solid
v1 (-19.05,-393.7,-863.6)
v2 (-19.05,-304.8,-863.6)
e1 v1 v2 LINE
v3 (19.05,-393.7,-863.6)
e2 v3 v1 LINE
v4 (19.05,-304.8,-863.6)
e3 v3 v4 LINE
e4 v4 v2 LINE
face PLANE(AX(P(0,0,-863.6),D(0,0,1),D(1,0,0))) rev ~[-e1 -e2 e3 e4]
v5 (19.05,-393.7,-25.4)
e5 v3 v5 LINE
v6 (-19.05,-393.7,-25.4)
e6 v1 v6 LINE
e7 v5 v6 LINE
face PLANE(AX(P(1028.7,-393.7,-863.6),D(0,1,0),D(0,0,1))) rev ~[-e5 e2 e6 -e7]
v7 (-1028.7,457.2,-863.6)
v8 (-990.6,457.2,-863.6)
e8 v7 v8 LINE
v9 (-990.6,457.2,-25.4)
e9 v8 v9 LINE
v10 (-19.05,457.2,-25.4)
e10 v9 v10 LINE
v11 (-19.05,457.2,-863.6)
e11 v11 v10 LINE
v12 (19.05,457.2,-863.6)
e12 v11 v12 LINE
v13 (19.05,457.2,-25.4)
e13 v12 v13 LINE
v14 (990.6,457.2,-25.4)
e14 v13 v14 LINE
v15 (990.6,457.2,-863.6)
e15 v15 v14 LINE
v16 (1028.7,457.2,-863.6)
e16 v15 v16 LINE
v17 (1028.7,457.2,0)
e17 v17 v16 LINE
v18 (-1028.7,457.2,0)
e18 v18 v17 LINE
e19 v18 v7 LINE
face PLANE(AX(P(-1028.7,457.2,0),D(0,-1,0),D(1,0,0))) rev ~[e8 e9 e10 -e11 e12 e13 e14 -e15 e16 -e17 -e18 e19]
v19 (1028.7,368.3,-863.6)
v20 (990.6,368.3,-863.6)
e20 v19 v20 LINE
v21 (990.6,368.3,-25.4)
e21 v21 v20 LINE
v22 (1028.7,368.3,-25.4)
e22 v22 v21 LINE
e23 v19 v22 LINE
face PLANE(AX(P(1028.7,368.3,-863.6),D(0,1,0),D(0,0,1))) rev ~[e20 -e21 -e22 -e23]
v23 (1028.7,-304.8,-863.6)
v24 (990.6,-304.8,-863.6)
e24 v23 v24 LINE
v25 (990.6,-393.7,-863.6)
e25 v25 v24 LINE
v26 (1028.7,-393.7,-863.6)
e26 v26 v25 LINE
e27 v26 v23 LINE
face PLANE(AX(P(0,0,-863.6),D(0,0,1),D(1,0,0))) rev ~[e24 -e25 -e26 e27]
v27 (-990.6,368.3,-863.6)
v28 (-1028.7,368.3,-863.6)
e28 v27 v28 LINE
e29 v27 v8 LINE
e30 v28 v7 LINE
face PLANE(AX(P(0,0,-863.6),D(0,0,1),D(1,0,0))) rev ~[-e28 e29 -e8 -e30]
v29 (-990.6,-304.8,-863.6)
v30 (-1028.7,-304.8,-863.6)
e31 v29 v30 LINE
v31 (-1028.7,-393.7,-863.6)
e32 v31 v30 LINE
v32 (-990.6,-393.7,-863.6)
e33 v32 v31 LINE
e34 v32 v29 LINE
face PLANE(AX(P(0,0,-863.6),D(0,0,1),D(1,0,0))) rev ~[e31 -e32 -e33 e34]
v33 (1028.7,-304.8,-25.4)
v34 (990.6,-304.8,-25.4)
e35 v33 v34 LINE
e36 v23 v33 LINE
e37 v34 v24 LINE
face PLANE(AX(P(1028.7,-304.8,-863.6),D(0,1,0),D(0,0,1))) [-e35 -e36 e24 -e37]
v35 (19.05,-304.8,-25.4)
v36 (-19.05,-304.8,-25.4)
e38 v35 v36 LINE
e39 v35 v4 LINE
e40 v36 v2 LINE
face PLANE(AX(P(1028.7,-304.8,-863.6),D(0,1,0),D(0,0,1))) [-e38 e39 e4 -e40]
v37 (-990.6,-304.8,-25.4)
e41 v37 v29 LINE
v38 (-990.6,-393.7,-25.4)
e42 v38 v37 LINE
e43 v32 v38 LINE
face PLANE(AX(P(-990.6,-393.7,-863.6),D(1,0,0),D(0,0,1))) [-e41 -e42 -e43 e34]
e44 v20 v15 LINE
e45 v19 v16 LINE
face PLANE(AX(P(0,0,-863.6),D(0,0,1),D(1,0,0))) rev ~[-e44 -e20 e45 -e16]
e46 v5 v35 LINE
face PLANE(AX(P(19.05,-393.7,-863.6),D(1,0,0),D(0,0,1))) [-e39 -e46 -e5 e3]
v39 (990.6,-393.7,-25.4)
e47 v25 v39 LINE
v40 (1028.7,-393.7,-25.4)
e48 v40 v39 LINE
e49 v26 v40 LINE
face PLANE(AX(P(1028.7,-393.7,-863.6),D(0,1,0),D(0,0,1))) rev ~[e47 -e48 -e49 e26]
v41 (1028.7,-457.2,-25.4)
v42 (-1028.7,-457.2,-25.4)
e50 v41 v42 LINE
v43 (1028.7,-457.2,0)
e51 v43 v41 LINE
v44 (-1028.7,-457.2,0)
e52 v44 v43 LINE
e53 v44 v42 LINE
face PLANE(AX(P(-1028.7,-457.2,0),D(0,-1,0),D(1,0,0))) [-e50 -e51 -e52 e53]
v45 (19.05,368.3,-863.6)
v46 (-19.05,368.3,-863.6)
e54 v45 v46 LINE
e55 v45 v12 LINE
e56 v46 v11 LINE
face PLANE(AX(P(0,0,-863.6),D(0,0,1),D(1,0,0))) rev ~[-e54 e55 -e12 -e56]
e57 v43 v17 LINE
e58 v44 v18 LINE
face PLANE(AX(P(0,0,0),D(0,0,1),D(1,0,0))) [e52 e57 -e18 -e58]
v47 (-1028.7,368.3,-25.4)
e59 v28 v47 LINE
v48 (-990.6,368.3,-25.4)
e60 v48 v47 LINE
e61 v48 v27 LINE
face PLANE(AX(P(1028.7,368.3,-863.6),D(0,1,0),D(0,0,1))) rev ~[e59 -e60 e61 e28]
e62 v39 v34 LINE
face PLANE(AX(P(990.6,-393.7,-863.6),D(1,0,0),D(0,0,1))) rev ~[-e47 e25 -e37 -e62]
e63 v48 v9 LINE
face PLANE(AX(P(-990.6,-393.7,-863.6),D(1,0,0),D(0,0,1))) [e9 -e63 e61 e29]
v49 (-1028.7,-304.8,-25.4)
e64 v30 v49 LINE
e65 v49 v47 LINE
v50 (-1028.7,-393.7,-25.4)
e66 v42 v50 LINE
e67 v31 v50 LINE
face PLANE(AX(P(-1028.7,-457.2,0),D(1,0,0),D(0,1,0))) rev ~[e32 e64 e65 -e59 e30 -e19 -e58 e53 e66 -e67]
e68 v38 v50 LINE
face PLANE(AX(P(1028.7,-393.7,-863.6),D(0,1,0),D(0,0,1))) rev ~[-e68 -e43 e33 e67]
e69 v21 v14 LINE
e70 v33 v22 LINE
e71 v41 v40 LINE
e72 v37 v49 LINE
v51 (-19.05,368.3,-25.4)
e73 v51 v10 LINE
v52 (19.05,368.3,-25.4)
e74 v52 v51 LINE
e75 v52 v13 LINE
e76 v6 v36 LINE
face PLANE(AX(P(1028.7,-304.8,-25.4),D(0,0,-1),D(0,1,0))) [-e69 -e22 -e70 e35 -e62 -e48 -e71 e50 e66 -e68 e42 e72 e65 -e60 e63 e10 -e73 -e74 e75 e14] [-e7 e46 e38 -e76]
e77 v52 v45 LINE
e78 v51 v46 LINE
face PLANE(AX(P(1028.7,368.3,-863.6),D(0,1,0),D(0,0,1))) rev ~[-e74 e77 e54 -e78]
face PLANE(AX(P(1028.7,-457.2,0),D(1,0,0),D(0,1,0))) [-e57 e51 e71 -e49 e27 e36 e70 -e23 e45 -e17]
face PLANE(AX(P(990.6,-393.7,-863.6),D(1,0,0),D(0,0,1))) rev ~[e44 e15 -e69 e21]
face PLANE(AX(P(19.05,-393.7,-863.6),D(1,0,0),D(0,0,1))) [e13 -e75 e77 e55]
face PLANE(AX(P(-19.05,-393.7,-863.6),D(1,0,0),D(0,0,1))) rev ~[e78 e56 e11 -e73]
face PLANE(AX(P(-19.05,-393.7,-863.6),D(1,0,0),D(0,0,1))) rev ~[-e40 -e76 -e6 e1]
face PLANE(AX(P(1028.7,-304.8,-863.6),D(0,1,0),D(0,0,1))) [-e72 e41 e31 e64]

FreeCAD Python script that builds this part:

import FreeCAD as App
import Part
import Sketcher

V = App.Vector
Q = App.Units.Quantity

doc = App.newDocument("Part")
body = doc.addObject("PartDesign::Body", "Body")

# Sketch on XY plane
sketch1 = body.newObject("Sketcher::SketchObject", "Sketch")
sketch1.AttachmentSupport = (doc.getObject("XY_Plane"), [""])
sketch1.MapMode = "FlatFace"
sketch1.addGeometry(Part.LineSegment(V(-1029, 457, 0), V(-1029, -457, 0)), False)
sketch1.addGeometry(Part.LineSegment(V(-1029, -457, 0), V(1029, -457, 0)), False)
sketch1.addGeometry(Part.LineSegment(V(1029, -457, 0), V(1029, 457, 0)), False)
sketch1.addGeometry(Part.LineSegment(V(1029, 457, 0), V(-1029, 457, 0)), False)
sketch1.addConstraint(Sketcher.Constraint("Coincident", 0, 2, 1, 1))
sketch1.addConstraint(Sketcher.Constraint("Coincident", 1, 2, 2, 1))
sketch1.addConstraint(Sketcher.Constraint("Coincident", 2, 2, 3, 1))
sketch1.addConstraint(Sketcher.Constraint("Coincident", 3, 2, 0, 1))
sketch1.addConstraint(Sketcher.Constraint("Vertical", 0))
sketch1.addConstraint(Sketcher.Constraint("Horizontal", 1))
sketch1.addConstraint(Sketcher.Constraint("Vertical", 2))
sketch1.addConstraint(Sketcher.Constraint("Horizontal", 3))
sketch1.addConstraint(Sketcher.Constraint("Symmetric", 0, 2, 2, 2, -1, 1))
sketch1.addConstraint(Sketcher.Constraint("DistanceX", 1, 1, 1, 2, Q("81 in")))
sketch1.addConstraint(Sketcher.Constraint("DistanceY", 0, 2, 0, 1, Q("36 in")))
pad1 = body.newObject("PartDesign::Pad", "Pad")
pad1.Profile = sketch1
pad1.Length = Q("34 in")
pad1.Reversed = True

# Sketch on YZ plane
sketch2 = body.newObject("Sketcher::SketchObject", "Sketch001")
sketch2.AttachmentSupport = (doc.getObject("YZ_Plane"), [""])
sketch2.MapMode = "FlatFace"
sketch2.AttachmentOffset = App.Placement(V(0, 0, 40.5 * 25.4), App.Rotation())
sketch2.addGeometry(Part.LineSegment(V(-457, -25, 0), V(-457, -864, 0)), False)
sketch2.addGeometry(Part.LineSegment(V(-457, -864, 0), V(-394, -864, 0)), False)
sketch2.addGeometry(Part.LineSegment(V(-394, -864, 0), V(-394, -25, 0)), False)
sketch2.addGeometry(Part.LineSegment(V(-394, -25, 0), V(-457, -25, 0)), False)
sketch2.addGeometry(Part.LineSegment(V(-305, -25, 0), V(-305, -864, 0)), False)
sketch2.addGeometry(Part.LineSegment(V(-305, -864, 0), V(368, -864, 0)), False)
sketch2.addGeometry(Part.LineSegment(V(368, -864, 0), V(368, -25, 0)), False)
sketch2.addGeometry(Part.LineSegment(V(368, -25, 0), V(-305, -25, 0)), False)
sketch2.addConstraint(Sketcher.Constraint("Coincident", 0, 2, 1, 1))
sketch2.addConstraint(Sketcher.Constraint("Coincident", 1, 2, 2, 1))
sketch2.addConstraint(Sketcher.Constraint("Coincident", 2, 2, 3, 1))
sketch2.addConstraint(Sketcher.Constraint("Coincident", 3, 2, 0, 1))
sketch2.addConstraint(Sketcher.Constraint("Coincident", 4, 2, 5, 1))
sketch2.addConstraint(Sketcher.Constraint("Coincident", 5, 2, 6, 1))
sketch2.addConstraint(Sketcher.Constraint("Coincident", 6, 2, 7, 1))
sketch2.addConstraint(Sketcher.Constraint("Coincident", 7, 2, 4, 1))
sketch2.addConstraint(Sketcher.Constraint("Vertical", 0))
sketch2.addConstraint(Sketcher.Constraint("Horizontal", 1))
sketch2.addConstraint(Sketcher.Constraint("Vertical", 2))
sketch2.addConstraint(Sketcher.Constraint("Horizontal", 3))
sketch2.addConstraint(Sketcher.Constraint("Vertical", 4))
sketch2.addConstraint(Sketcher.Constraint("Horizontal", 5))
sketch2.addConstraint(Sketcher.Constraint("Vertical", 6))
sketch2.addConstraint(Sketcher.Constraint("Horizontal", 7))
sketch2.addConstraint(Sketcher.Constraint("Horizontal", 1, 2, 4, 2))
sketch2.addConstraint(Sketcher.Constraint("Horizontal", 3, 2, 6, 2))
sketch2.addConstraint(Sketcher.Constraint("DistanceY", 0, 2, 0, 1, Q("33 in")))
sketch2.addConstraint(Sketcher.Constraint("DistanceX", 1, 1, 1, 2, Q("2.5 in")))
sketch2.addConstraint(Sketcher.Constraint("DistanceX", 5, 1, 5, 2, Q("26.5 in")))
sketch2.addConstraint(Sketcher.Constraint("DistanceX", 0, 2, -1, 1, Q("18 in")))
sketch2.addConstraint(Sketcher.Constraint("DistanceY", 0, 2, -1, 1, Q("34 in")))
sketch2.addConstraint(Sketcher.Constraint("DistanceX", 4, 2, -1, 1, Q("12 in")))
pocket1 = body.newObject("PartDesign::Pocket", "Pocket")
pocket1.Profile = sketch2
pocket1.Type = "ThroughAll"

# Sketch on XZ plane
sketch3 = body.newObject("Sketcher::SketchObject", "Sketch002")
sketch3.AttachmentSupport = (doc.getObject("XZ_Plane"), [""])
sketch3.MapMode = "FlatFace"
sketch3.AttachmentOffset = App.Placement(V(0, 0, 15.5 * 25.4), App.Rotation())
sketch3.addGeometry(Part.LineSegment(V(-991, -25, 0), V(-991, -864, 0)), False)
sketch3.addGeometry(Part.LineSegment(V(-991, -864, 0), V(-19, -864, 0)), False)
sketch3.addGeometry(Part.LineSegment(V(-19, -864, 0), V(-19, -25, 0)), False)
sketch3.addGeometry(Part.LineSegment(V(-19, -25, 0), V(-991, -25, 0)), False)
sketch3.addGeometry(Part.LineSegment(V(19, -25, 0), V(19, -864, 0)), False)
sketch3.addGeometry(Part.LineSegment(V(19, -864, 0), V(991, -864, 0)), False)
sketch3.addGeometry(Part.LineSegment(V(991, -864, 0), V(991, -25, 0)), False)
sketch3.addGeometry(Part.LineSegment(V(991, -25, 0), V(19, -25, 0)), False)
sketch3.addConstraint(Sketcher.Constraint("Coincident", 0, 2, 1, 1))
sketch3.addConstraint(Sketcher.Constraint("Coincident", 1, 2, 2, 1))
sketch3.addConstraint(Sketcher.Constraint("Coincident", 2, 2, 3, 1))
sketch3.addConstraint(Sketcher.Constraint("Coincident", 3, 2, 0, 1))
sketch3.addConstraint(Sketcher.Constraint("Coincident", 4, 2, 5, 1))
sketch3.addConstraint(Sketcher.Constraint("Coincident", 5, 2, 6, 1))
sketch3.addConstraint(Sketcher.Constraint("Coincident", 6, 2, 7, 1))
sketch3.addConstraint(Sketcher.Constraint("Coincident", 7, 2, 4, 1))
sketch3.addConstraint(Sketcher.Constraint("Vertical", 0))
sketch3.addConstraint(Sketcher.Constraint("Horizontal", 1))
sketch3.addConstraint(Sketcher.Constraint("Vertical", 2))
sketch3.addConstraint(Sketcher.Constraint("Horizontal", 3))
sketch3.addConstraint(Sketcher.Constraint("Vertical", 4))
sketch3.addConstraint(Sketcher.Constraint("Horizontal", 5))
sketch3.addConstraint(Sketcher.Constraint("Vertical", 6))
sketch3.addConstraint(Sketcher.Constraint("Horizontal", 7))
sketch3.addConstraint(Sketcher.Constraint("Symmetric", 1, 2, 4, 2, -2))
sketch3.addConstraint(Sketcher.Constraint("Symmetric", 3, 2, 6, 2, -2))
sketch3.addConstraint(Sketcher.Constraint("DistanceY", 0, 2, 0, 1, Q("33 in")))
sketch3.addConstraint(Sketcher.Constraint("DistanceX", 0, 2, -1, 1, Q("39 in")))
sketch3.addConstraint(Sketcher.Constraint("DistanceY", 0, 2, -1, 1, Q("34 in")))
sketch3.addConstraint(Sketcher.Constraint("DistanceX", 1, 1, 1, 2, Q("38.25 in")))
pocket2 = body.newObject("PartDesign::Pocket", "Pocket001")
pocket2.Profile = sketch3
pocket2.Type = "ThroughAll"

doc.recompute()
